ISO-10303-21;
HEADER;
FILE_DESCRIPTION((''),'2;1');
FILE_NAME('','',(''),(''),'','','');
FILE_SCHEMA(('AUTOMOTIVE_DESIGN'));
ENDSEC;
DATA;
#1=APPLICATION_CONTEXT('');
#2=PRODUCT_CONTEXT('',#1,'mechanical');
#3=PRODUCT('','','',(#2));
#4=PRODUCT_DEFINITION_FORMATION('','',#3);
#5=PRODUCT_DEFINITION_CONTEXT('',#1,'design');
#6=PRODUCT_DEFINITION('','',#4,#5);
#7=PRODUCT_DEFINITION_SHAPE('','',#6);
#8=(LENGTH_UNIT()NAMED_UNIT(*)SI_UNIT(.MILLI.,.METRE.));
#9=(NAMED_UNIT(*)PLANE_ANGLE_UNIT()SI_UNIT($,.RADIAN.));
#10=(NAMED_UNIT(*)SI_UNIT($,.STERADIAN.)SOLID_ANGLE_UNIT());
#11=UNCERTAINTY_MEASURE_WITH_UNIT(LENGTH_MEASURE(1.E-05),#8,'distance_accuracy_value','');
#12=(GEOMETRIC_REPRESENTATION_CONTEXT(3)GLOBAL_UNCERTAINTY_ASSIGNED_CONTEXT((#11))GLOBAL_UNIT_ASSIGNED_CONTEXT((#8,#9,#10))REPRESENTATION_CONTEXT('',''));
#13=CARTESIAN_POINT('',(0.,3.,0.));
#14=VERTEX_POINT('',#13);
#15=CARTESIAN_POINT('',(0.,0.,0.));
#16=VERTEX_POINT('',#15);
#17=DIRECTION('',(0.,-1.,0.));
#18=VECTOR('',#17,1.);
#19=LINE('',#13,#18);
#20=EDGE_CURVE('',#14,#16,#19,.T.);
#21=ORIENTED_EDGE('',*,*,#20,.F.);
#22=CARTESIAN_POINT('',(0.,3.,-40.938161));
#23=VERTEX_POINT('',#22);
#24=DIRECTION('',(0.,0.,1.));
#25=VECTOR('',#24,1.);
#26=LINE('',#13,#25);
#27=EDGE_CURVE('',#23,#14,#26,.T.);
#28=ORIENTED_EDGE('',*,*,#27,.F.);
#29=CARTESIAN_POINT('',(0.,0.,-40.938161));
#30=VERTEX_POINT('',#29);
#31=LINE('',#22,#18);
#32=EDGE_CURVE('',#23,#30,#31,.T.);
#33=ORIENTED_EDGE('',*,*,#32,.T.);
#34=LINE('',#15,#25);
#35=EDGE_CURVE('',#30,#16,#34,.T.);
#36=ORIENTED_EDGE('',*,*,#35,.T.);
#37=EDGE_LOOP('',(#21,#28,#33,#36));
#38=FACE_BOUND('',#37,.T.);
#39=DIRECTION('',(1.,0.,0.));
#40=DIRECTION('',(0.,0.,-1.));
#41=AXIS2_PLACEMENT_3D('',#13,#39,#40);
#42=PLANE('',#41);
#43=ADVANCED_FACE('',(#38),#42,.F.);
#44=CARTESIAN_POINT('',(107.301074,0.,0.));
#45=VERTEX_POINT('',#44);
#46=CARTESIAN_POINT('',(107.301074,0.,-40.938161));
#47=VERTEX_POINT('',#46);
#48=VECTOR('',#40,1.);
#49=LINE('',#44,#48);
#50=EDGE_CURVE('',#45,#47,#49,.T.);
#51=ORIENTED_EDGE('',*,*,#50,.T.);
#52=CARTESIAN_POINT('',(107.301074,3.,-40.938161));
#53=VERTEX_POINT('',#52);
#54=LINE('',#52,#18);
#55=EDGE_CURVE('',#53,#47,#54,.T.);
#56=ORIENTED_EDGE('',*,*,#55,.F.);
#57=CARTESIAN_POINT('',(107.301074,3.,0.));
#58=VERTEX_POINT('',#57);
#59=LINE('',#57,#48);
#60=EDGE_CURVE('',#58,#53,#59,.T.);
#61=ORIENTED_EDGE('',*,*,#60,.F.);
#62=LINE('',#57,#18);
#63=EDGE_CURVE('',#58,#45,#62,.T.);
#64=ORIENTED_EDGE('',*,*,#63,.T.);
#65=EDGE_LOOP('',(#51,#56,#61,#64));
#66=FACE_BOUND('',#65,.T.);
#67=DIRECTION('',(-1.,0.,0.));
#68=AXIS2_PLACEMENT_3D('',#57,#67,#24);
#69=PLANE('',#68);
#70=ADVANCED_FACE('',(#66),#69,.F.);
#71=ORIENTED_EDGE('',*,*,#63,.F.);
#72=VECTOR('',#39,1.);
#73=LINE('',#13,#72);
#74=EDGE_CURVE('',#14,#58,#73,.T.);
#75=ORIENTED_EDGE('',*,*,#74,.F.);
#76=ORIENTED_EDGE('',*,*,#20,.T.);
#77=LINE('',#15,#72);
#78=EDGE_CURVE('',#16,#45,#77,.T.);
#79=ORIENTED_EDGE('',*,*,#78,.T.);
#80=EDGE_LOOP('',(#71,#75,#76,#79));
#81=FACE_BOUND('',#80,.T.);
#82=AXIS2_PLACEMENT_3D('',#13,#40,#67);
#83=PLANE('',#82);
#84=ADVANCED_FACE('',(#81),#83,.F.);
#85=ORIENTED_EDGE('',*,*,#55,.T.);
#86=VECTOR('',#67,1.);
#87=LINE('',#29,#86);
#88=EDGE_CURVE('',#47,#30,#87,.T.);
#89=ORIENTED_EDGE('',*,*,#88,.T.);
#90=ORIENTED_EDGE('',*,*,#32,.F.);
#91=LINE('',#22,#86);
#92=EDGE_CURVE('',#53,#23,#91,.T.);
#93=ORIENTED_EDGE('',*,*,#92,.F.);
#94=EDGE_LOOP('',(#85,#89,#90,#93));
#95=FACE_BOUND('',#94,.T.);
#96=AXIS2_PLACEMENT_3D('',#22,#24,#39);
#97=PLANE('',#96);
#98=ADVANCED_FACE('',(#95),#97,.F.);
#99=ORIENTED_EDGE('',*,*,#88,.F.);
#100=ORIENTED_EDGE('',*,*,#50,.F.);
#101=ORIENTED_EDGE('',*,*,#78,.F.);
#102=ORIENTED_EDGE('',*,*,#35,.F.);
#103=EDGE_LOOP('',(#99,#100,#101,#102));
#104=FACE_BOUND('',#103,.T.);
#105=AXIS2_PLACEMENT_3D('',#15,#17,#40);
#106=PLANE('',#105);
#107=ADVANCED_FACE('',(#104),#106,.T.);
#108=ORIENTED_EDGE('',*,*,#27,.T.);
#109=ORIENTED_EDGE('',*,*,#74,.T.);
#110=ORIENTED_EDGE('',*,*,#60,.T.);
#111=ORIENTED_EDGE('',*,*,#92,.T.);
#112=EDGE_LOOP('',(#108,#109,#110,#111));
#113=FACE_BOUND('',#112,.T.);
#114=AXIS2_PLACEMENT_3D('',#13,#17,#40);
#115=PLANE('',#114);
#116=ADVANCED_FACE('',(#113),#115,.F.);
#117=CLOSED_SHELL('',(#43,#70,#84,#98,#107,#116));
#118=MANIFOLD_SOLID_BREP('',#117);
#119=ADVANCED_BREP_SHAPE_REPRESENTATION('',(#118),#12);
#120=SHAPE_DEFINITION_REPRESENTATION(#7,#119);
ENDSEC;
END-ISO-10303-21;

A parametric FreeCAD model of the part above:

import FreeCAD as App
import Part
import Sketcher
from FreeCAD import Vector

doc = App.newDocument("Part")
params = doc.addObject("Spreadsheet::Sheet", "Params")
for row, (alias, value) in enumerate([
    ("pad1_length", "3 mm"),
], start=1):
    params.set(f"A{row}", alias)
    params.set(f"B{row}", "=" + value)
    params.setAlias(f"B{row}", alias)

body = doc.addObject("PartDesign::Body", "Body")

sketch1 = body.newObject("Sketcher::SketchObject", "Sketch")
sketch1.AttachmentSupport = (doc.getObject("XZ_Plane"), [""])
sketch1.MapMode = "FlatFace"
sketch1.addGeometry(Part.LineSegment(Vector(0, -40.938161, 0), Vector(0, 0, 0)), False)
sketch1.addGeometry(Part.LineSegment(Vector(0, 0, 0), Vector(107.301074, 0, 0)), False)
sketch1.addGeometry(Part.LineSegment(Vector(107.301074, 0, 0), Vector(107.301074, -40.938161, 0)), False)
sketch1.addGeometry(Part.LineSegment(Vector(107.301074, -40.938161, 0), Vector(0, -40.938161, 0)), False)
sketch1.addConstraint(Sketcher.Constraint("Coincident", 0, 2, 1, 1))
sketch1.addConstraint(Sketcher.Constraint("Coincident", 1, 2, 2, 1))
sketch1.addConstraint(Sketcher.Constraint("Coincident", 2, 2, 3, 1))
sketch1.addConstraint(Sketcher.Constraint("Coincident", 3, 2, 0, 1))
sketch1.addConstraint(Sketcher.Constraint("Vertical", 0))
sketch1.addConstraint(Sketcher.Constraint("Horizontal", 1))
sketch1.addConstraint(Sketcher.Constraint("Vertical", 2))
sketch1.addConstraint(Sketcher.Constraint("Horizontal", 3))
sketch1.addConstraint(Sketcher.Constraint("Coincident", 0, 2, -1, 1))
sketch1.addConstraint(Sketcher.Constraint("DistanceY", 0, 1, 0, 2, 40.938161))
sketch1.addConstraint(Sketcher.Constraint("DistanceX", 1, 1, 1, 2, 107.301074))
pad1 = body.newObject("PartDesign::Pad", "Pad")
pad1.Profile = sketch1
pad1.setExpression("Length", "Params.pad1_length")
pad1.Reversed = True

doc.recompute()
